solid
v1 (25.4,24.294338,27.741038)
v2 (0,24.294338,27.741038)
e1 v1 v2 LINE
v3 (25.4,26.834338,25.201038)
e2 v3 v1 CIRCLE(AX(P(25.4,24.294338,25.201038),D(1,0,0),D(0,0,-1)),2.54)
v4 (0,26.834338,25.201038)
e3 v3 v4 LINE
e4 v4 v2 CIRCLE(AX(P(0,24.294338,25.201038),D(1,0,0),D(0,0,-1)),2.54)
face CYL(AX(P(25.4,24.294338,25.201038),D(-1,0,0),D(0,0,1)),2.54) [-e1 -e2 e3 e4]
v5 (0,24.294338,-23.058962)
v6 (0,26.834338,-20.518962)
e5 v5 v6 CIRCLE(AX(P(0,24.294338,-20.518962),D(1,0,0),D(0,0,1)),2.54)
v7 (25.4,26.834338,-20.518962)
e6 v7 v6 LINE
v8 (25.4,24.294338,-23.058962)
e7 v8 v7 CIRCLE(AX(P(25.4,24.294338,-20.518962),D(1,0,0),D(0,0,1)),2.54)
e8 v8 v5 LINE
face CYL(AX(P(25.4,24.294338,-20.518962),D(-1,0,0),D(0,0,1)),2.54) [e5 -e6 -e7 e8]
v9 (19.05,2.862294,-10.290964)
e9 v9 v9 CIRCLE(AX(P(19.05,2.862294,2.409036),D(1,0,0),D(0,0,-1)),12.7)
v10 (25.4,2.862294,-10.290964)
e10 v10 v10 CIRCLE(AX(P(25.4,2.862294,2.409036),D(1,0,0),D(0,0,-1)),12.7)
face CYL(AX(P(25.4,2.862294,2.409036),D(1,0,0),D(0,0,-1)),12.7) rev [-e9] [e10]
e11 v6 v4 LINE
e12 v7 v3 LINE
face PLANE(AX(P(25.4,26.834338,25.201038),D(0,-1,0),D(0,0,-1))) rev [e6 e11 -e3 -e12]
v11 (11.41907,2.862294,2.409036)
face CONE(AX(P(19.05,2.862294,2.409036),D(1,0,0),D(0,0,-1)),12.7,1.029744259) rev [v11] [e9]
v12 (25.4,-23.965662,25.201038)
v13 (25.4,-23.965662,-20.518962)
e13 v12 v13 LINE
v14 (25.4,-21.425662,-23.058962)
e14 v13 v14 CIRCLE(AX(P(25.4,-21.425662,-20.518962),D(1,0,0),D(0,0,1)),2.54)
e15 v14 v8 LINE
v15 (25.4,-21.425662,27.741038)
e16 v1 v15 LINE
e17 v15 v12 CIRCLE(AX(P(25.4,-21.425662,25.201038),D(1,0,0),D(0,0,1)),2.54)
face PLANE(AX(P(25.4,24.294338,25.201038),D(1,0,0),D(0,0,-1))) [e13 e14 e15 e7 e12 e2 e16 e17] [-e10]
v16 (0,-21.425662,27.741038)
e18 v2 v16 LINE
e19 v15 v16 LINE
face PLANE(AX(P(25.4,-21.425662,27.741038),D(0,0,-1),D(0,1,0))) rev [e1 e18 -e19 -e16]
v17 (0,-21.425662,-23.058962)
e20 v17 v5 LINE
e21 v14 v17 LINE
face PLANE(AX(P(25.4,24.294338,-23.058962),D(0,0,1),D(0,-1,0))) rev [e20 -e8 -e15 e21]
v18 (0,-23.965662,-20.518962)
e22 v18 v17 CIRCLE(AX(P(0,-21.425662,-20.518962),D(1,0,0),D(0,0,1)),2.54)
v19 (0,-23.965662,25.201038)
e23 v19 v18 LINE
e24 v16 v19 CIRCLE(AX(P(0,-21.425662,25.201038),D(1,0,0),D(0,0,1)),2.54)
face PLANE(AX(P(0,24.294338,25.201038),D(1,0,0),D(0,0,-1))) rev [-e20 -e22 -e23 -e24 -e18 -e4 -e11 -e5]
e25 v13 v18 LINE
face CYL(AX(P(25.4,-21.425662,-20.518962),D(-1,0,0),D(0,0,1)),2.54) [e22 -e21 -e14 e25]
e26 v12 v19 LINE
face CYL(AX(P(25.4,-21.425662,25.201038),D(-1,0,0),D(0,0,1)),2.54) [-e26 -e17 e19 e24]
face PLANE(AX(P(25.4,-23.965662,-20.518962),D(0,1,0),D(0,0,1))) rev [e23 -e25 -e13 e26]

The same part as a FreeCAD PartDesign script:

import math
import FreeCAD as App
import Part
import Sketcher
from FreeCAD import Vector
Q = App.Units.Quantity

doc = App.newDocument("Part")
params = doc.addObject("Spreadsheet::Sheet", "Params")
for row, (alias, value) in enumerate([
    ("sketch1_radius", "0.1 in"),
    ("sketch1_width", "1.8 in"),
    ("pad1_length", "1 in"),
    ("sketch2_diameter", "1 in"),
    ("hole_diameter", "1 in"),
    ("hole_depth", "0.25 in"),
], start=1):
    params.set(f"A{row}", alias)
    params.set(f"B{row}", "=" + value)
    params.setAlias(f"B{row}", alias)

body = doc.addObject("PartDesign::Body", "Body")

sketch1 = body.newObject("Sketcher::SketchObject", "Sketch")
sketch1.AttachmentSupport = (doc.getObject("YZ_Plane"), [""])
sketch1.MapMode = "FlatFace"
sketch1.addGeometry(Part.LineSegment(Vector(26.8, -20.5, 0), Vector(26.8, 25.2, 0)), False)
sketch1.addGeometry(Part.ArcOfCircle(Part.Circle(Vector(24.3, 25.2, 0), Vector(0, 0, 1), 2.5), math.radians(0), math.radians(90)), False)
sketch1.addGeometry(Part.LineSegment(Vector(24.3, 27.7, 0), Vector(-21.4, 27.7, 0)), False)
sketch1.addGeometry(Part.ArcOfCircle(Part.Circle(Vector(-21.4, 25.2, 0), Vector(0, 0, 1), 2.5), math.radians(90), math.radians(180)), False)
sketch1.addGeometry(Part.LineSegment(Vector(-24, 25.2, 0), Vector(-24, -20.5, 0)), False)
sketch1.addGeometry(Part.ArcOfCircle(Part.Circle(Vector(-21.4, -20.5, 0), Vector(0, 0, 1), 2.5), math.radians(-180), math.radians(-90)), False)
sketch1.addGeometry(Part.LineSegment(Vector(-21.4, -23.1, 0), Vector(24.3, -23.1, 0)), False)
sketch1.addGeometry(Part.ArcOfCircle(Part.Circle(Vector(24.3, -20.5, 0), Vector(0, 0, 1), 2.5), math.radians(-90), math.radians(0)), False)
sketch1.addConstraint(Sketcher.Constraint("Tangent", 0, 2, 1, 1))
sketch1.addConstraint(Sketcher.Constraint("Tangent", 1, 2, 2, 1))
sketch1.addConstraint(Sketcher.Constraint("Tangent", 2, 2, 3, 1))
sketch1.addConstraint(Sketcher.Constraint("Tangent", 3, 2, 4, 1))
sketch1.addConstraint(Sketcher.Constraint("Tangent", 4, 2, 5, 1))
sketch1.addConstraint(Sketcher.Constraint("Tangent", 5, 2, 6, 1))
sketch1.addConstraint(Sketcher.Constraint("Tangent", 6, 2, 7, 1))
sketch1.addConstraint(Sketcher.Constraint("Tangent", 7, 2, 0, 1))
sketch1.addConstraint(Sketcher.Constraint("Vertical", 0))
sketch1.addConstraint(Sketcher.Constraint("Horizontal", 2))
sketch1.addConstraint(Sketcher.Constraint("Vertical", 4))
sketch1.addConstraint(Sketcher.Constraint("Horizontal", 6))
sketch1.addConstraint(Sketcher.Constraint("Equal", 1, 3))
sketch1.addConstraint(Sketcher.Constraint("Equal", 3, 5))
sketch1.addConstraint(Sketcher.Constraint("Equal", 5, 7))
sketch1.addConstraint(Sketcher.Constraint("Equal", 6, 0))
sketch1.addConstraint(Sketcher.Constraint("Radius", 1, Q("0.1 in")))
sketch1.addConstraint(Sketcher.Constraint("DistanceX", 2, 2, 2, 1, Q("1.8 in")))
sketch1.addConstraint(Sketcher.Constraint("DistanceY", -1, 1, 1, 3, 25.201038))
sketch1.addConstraint(Sketcher.Constraint("DistanceX", -1, 1, 1, 3, 24.294338))
sketch1.setExpression("Constraints[16]", "Params.sketch1_radius")
sketch1.setExpression("Constraints[17]", "Params.sketch1_width")
pad1 = body.newObject("PartDesign::Pad", "Pad")
pad1.Profile = sketch1
pad1.setExpression("Length", "Params.pad1_length")

sketch2 = body.newObject("Sketcher::SketchObject", "Sketch001")
sketch2.AttachmentSupport = (doc.getObject("YZ_Plane"), [""])
sketch2.MapMode = "FlatFace"
sketch2.AttachmentOffset = App.Placement(Vector(0, 0, 1 * 25.4), App.Rotation())
sketch2.addGeometry(Part.Circle(Vector(3, 2, 0), Vector(0, 0, 1), 13), False)
sketch2.addConstraint(Sketcher.Constraint("Diameter", 0, Q("1 in")))
sketch2.addConstraint(Sketcher.Constraint("DistanceX", -1, 1, 0, 3, 2.862294))
sketch2.addConstraint(Sketcher.Constraint("DistanceY", -1, 1, 0, 3, 2.409036))
sketch2.setExpression("Constraints[0]", "Params.sketch2_diameter")
doc.recompute()
hole = body.newObject("PartDesign::Hole", "Hole")
hole.Profile = sketch2
hole.ThreadType = "None"
hole.setExpression("Diameter", "Params.hole_diameter")
hole.DepthType = "Dimension"
hole.setExpression("Depth", "Params.hole_depth")
hole.DrillPoint = "Angled"
hole.DrillPointAngle = 118

doc.recompute()
